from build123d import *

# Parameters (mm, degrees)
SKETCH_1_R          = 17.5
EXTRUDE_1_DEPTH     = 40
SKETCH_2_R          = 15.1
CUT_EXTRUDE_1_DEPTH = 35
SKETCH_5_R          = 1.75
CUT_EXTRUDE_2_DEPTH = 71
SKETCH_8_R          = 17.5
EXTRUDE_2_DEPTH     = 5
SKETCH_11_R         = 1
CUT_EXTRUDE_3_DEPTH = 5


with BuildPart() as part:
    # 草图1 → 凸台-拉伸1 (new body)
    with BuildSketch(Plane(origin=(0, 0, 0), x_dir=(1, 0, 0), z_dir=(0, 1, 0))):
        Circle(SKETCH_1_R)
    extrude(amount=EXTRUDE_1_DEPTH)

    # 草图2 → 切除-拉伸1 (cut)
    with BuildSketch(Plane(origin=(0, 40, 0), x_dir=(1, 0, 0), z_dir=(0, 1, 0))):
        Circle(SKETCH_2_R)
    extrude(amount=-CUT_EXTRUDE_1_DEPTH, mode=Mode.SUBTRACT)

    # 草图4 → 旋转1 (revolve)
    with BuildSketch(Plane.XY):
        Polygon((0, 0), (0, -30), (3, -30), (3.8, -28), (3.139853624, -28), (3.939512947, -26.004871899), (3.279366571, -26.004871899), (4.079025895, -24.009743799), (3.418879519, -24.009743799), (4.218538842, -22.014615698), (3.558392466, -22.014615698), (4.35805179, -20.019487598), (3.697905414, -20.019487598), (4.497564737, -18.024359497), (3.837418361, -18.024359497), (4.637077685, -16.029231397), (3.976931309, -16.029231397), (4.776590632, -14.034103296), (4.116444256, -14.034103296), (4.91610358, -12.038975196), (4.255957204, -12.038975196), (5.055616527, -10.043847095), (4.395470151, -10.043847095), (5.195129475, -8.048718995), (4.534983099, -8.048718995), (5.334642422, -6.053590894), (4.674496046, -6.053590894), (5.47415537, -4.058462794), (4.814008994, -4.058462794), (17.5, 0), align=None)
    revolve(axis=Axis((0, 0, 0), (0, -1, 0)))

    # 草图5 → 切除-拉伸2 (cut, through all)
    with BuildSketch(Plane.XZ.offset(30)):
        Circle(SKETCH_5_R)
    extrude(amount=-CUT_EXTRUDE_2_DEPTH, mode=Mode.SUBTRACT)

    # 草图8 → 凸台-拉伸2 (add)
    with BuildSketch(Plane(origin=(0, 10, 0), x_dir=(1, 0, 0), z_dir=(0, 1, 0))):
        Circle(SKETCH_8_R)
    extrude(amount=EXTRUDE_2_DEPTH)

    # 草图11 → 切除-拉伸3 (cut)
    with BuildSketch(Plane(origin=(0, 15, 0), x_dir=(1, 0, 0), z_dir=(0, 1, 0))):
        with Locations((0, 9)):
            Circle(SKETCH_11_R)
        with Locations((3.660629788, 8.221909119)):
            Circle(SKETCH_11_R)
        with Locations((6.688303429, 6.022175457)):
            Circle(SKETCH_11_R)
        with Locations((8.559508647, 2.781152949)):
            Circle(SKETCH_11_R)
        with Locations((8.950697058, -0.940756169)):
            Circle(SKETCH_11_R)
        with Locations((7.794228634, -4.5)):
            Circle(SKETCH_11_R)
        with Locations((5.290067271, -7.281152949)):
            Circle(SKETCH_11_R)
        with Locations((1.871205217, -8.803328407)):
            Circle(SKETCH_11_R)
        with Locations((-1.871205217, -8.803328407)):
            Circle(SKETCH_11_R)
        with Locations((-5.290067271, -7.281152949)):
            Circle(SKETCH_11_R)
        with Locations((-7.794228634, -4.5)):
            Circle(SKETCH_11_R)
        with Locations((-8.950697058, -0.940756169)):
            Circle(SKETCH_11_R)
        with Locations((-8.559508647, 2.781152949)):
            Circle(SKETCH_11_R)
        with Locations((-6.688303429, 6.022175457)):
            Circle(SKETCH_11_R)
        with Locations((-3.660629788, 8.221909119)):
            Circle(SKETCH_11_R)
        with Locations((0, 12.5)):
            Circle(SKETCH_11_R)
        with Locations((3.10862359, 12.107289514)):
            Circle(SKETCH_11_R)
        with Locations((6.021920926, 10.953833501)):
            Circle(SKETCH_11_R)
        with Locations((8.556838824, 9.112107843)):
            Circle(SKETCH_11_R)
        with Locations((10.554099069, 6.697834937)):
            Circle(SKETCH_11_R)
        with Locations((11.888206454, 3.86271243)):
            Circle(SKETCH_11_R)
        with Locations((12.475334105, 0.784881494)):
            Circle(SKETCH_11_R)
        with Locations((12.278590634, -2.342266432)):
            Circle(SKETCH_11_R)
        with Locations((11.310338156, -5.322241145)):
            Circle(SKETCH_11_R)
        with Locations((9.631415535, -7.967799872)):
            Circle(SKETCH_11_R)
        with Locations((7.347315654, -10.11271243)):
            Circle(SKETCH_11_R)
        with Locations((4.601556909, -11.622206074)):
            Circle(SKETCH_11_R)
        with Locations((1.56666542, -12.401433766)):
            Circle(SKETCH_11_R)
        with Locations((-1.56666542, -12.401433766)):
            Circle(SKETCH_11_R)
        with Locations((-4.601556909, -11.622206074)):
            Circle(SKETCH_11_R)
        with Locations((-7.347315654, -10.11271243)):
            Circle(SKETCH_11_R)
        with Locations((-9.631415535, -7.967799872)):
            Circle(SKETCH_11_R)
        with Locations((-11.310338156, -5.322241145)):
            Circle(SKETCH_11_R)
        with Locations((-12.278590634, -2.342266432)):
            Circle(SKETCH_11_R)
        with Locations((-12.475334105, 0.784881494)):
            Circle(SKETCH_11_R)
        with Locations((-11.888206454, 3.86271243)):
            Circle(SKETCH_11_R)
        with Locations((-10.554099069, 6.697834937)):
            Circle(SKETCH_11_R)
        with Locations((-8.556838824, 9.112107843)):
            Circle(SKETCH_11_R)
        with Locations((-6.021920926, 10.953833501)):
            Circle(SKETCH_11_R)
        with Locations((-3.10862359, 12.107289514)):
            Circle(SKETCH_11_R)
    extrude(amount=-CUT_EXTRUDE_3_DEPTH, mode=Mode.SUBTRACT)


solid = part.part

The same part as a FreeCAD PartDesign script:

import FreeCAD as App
import Part
import Sketcher

V = App.Vector
Q = App.Units.Quantity


def add_polygon(sketch, points):
    """Adds a closed chain of lines whose ends are joined by coincident constraints."""
    first, n = sketch.GeometryCount, len(points)
    for a, b in zip(points, points[1:] + points[:1]):
        sketch.addGeometry(Part.LineSegment(App.Vector(*a, 0), App.Vector(*b, 0)), False)
    for i in range(n):
        sketch.addConstraint(Sketcher.Constraint("Coincident", first + i, 2, first + (i + 1) % n, 1))

doc = App.newDocument("Part")
body = doc.addObject("PartDesign::Body", "Body")

# Sketch on XZ plane
sketch1 = body.newObject("Sketcher::SketchObject", "Sketch")
sketch1.AttachmentSupport = (doc.getObject("XZ_Plane"), [""])
sketch1.MapMode = "FlatFace"
sketch1.addGeometry(Part.Circle(V(0, 0, 0), V(0, 0, 1), 18), False)
sketch1.addConstraint([
    Sketcher.Constraint("Coincident", 0, 3, -1, 1),
    Sketcher.Constraint("Diameter", 0, Q("35 mm")),
])
pad1 = body.newObject("PartDesign::Pad", "Pad")
pad1.Profile = sketch1
pad1.Length = 40
pad1.Reversed = True

# Sketch on XZ plane
sketch2 = body.newObject("Sketcher::SketchObject", "Sketch001")
sketch2.AttachmentSupport = (doc.getObject("XZ_Plane"), [""])
sketch2.MapMode = "FlatFace"
sketch2.AttachmentOffset = App.Placement(V(0, 0, -40), App.Rotation())
sketch2.addGeometry(Part.Circle(V(0, 0, 0), V(0, 0, 1), 15), False)
sketch2.addConstraint([
    Sketcher.Constraint("Coincident", 0, 3, -1, 1),
    Sketcher.Constraint("Diameter", 0, Q("30.2 mm")),
])
pocket1 = body.newObject("PartDesign::Pocket", "Pocket")
pocket1.Profile = sketch2
pocket1.Length = 35
pocket1.Reversed = True

# Sketch on XY plane
sketch3 = body.newObject("Sketcher::SketchObject", "Sketch002")
sketch3.AttachmentSupport = (doc.getObject("XY_Plane"), [""])
sketch3.MapMode = "FlatFace"
add_polygon(sketch3, [(0, 0), (0, -30), (3, -30), (3.8, -28), (3.1, -28), (3.9, -26), (3.3, -26), (4.1, -24), (3.4, -24), (4.2, -22), (3.6, -22), (4.4, -20), (3.7, -20), (4.5, -18), (3.8, -18), (4.6, -16), (4, -16), (4.8, -14), (4.1, -14), (4.9, -12), (4.3, -12), (5.1, -10), (4.4, -10), (5.2, -8), (4.5, -8), (5.3, -6.1), (4.7, -6.1), (5.5, -4.1), (4.8, -4.1), (17.5, 0)])  # lines 0-29
sketch3.addConstraint([
    Sketcher.Constraint("Vertical", 0),
    Sketcher.Constraint("Horizontal", 1),
    Sketcher.Constraint("Horizontal", 3),
    Sketcher.Constraint("Horizontal", 5),
    Sketcher.Constraint("Horizontal", 7),
    Sketcher.Constraint("Horizontal", 9),
    Sketcher.Constraint("Horizontal", 11),
    Sketcher.Constraint("Horizontal", 13),
    Sketcher.Constraint("Horizontal", 15),
    Sketcher.Constraint("Horizontal", 17),
    Sketcher.Constraint("Horizontal", 19),
    Sketcher.Constraint("Horizontal", 21),
    Sketcher.Constraint("Horizontal", 23),
    Sketcher.Constraint("Horizontal", 25),
    Sketcher.Constraint("Horizontal", 27),
    Sketcher.Constraint("Horizontal", 29),
    Sketcher.Constraint("Coincident", 29, 2, -1, 1),
    Sketcher.Constraint("Parallel", 4, 6),
    Sketcher.Constraint("Parallel", 6, 8),
    Sketcher.Constraint("Parallel", 8, 10),
    Sketcher.Constraint("Parallel", 10, 12),
    Sketcher.Constraint("Parallel", 12, 14),
    Sketcher.Constraint("Parallel", 14, 16),
    Sketcher.Constraint("Parallel", 16, 18),
    Sketcher.Constraint("Parallel", 18, 20),
    Sketcher.Constraint("Parallel", 20, 22),
    Sketcher.Constraint("Parallel", 22, 24),
    Sketcher.Constraint("Parallel", 24, 26),
    Sketcher.Constraint("Equal", 3, 5),
    Sketcher.Constraint("Equal", 5, 7),
    Sketcher.Constraint("Equal", 7, 9),
    Sketcher.Constraint("Equal", 9, 11),
    Sketcher.Constraint("Equal", 11, 13),
    Sketcher.Constraint("Equal", 13, 15),
    Sketcher.Constraint("Equal", 15, 17),
    Sketcher.Constraint("Equal", 17, 19),
    Sketcher.Constraint("Equal", 19, 21),
    Sketcher.Constraint("Equal", 21, 23),
    Sketcher.Constraint("Equal", 23, 25),
    Sketcher.Constraint("Equal", 25, 27),
    Sketcher.Constraint("Equal", 4, 6),
    Sketcher.Constraint("Equal", 6, 8),
    Sketcher.Constraint("Equal", 8, 10),
    Sketcher.Constraint("Equal", 10, 12),
    Sketcher.Constraint("Equal", 12, 14),
    Sketcher.Constraint("Equal", 14, 16),
    Sketcher.Constraint("Equal", 16, 18),
    Sketcher.Constraint("Equal", 18, 20),
    Sketcher.Constraint("Equal", 20, 22),
    Sketcher.Constraint("Equal", 22, 24),
    Sketcher.Constraint("Equal", 24, 26),
    Sketcher.Constraint("DistanceX", 1, 1, 1, 2, Q("3 mm")),
    Sketcher.Constraint("DistanceY", 0, 2, 0, 1, Q("30 mm")),
    Sketcher.Constraint("DistanceX", 29, 2, 29, 1, Q("17.5 mm")),
    Sketcher.Constraint("DistanceY", 2, 2, -1, 1, Q("28 mm")),
    Sketcher.Constraint("DistanceX", -1, 1, 2, 2, Q("3.8 mm")),
    Sketcher.Constraint("DistanceX", 3, 2, 3, 1, Q("0.660146 mm")),
    Sketcher.Constraint("DistanceY", 4, 2, -1, 1, Q("26.004872 mm")),
    Sketcher.Constraint("DistanceX", -1, 1, 7, 2, Q("3.41888 mm")),
])
revolution = body.newObject("PartDesign::Revolution", "Revolution")
revolution.Profile = sketch3
revolution.ReferenceAxis = (sketch3, ["V_Axis"])
revolution.Angle = 360

# Sketch on XZ plane
sketch4 = body.newObject("Sketcher::SketchObject", "Sketch003")
sketch4.AttachmentSupport = (doc.getObject("XZ_Plane"), [""])
sketch4.MapMode = "FlatFace"
sketch4.AttachmentOffset = App.Placement(V(0, 0, 30), App.Rotation())
sketch4.addGeometry(Part.Circle(V(0, 0, 0), V(0, 0, 1), 1.8), False)
sketch4.addConstraint([
    Sketcher.Constraint("Coincident", 0, 3, -1, 1),
    Sketcher.Constraint("Diameter", 0, Q("3.5 mm")),
])
pocket2 = body.newObject("PartDesign::Pocket", "Pocket001")
pocket2.Profile = sketch4
pocket2.Type = "ThroughAll"

# Sketch on XZ plane
sketch5 = body.newObject("Sketcher::SketchObject", "Sketch004")
sketch5.AttachmentSupport = (doc.getObject("XZ_Plane"), [""])
sketch5.MapMode = "FlatFace"
sketch5.AttachmentOffset = App.Placement(V(0, 0, -10), App.Rotation())
sketch5.addGeometry(Part.Circle(V(0, 0, 0), V(0, 0, 1), 18), False)
sketch5.addConstraint([
    Sketcher.Constraint("Coincident", 0, 3, -1, 1),
    Sketcher.Constraint("Diameter", 0, Q("35 mm")),
])
pad2 = body.newObject("PartDesign::Pad", "Pad001")
pad2.Profile = sketch5
pad2.Length = 5
pad2.Reversed = True

# Sketch on XZ plane
sketch6 = body.newObject("Sketcher::SketchObject", "Sketch005")
sketch6.AttachmentSupport = (doc.getObject("XZ_Plane"), [""])
sketch6.MapMode = "FlatFace"
sketch6.AttachmentOffset = App.Placement(V(0, 0, -15), App.Rotation())
sketch6.addGeometry([
    Part.Circle(V(0, -9, 0), V(0, 0, 1), 1),  # 0
    Part.Circle(V(3.7, -8.2, 0), V(0, 0, 1), 1),  # 1
    Part.Circle(V(6.7, -6, 0), V(0, 0, 1), 1),  # 2
    Part.Circle(V(8.6, -2.8, 0), V(0, 0, 1), 1),  # 3
    Part.Circle(V(9, 0.9, 0), V(0, 0, 1), 1),  # 4
    Part.Circle(V(7.8, 4.5, 0), V(0, 0, 1), 1),  # 5
    Part.Circle(V(5.3, 7.3, 0), V(0, 0, 1), 1),  # 6
    Part.Circle(V(1.9, 8.8, 0), V(0, 0, 1), 1),  # 7
    Part.Circle(V(-1.9, 8.8, 0), V(0, 0, 1), 1),  # 8
    Part.Circle(V(-5.3, 7.3, 0), V(0, 0, 1), 1),  # 9
    Part.Circle(V(-7.8, 4.5, 0), V(0, 0, 1), 1),  # 10
    Part.Circle(V(-9, 0.9, 0), V(0, 0, 1), 1),  # 11
    Part.Circle(V(-8.6, -2.8, 0), V(0, 0, 1), 1),  # 12
    Part.Circle(V(-6.7, -6, 0), V(0, 0, 1), 1),  # 13
    Part.Circle(V(-3.7, -8.2, 0), V(0, 0, 1), 1),  # 14
    Part.Circle(V(0, -12.5, 0), V(0, 0, 1), 1),  # 15
    Part.Circle(V(3.1, -12.1, 0), V(0, 0, 1), 1),  # 16
    Part.Circle(V(6, -11, 0), V(0, 0, 1), 1),  # 17
    Part.Circle(V(8.6, -9.1, 0), V(0, 0, 1), 1),  # 18
    Part.Circle(V(10.6, -6.7, 0), V(0, 0, 1), 1),  # 19
    Part.Circle(V(11.9, -3.9, 0), V(0, 0, 1), 1),  # 20
    Part.Circle(V(12.5, -0.8, 0), V(0, 0, 1), 1),  # 21
    Part.Circle(V(12.3, 2.3, 0), V(0, 0, 1), 1),  # 22
    Part.Circle(V(11.3, 5.3, 0), V(0, 0, 1), 1),  # 23
    Part.Circle(V(9.6, 8, 0), V(0, 0, 1), 1),  # 24
    Part.Circle(V(7.3, 10.1, 0), V(0, 0, 1), 1),  # 25
    Part.Circle(V(4.6, 11.6, 0), V(0, 0, 1), 1),  # 26
    Part.Circle(V(1.6, 12.4, 0), V(0, 0, 1), 1),  # 27
    Part.Circle(V(-1.6, 12.4, 0), V(0, 0, 1), 1),  # 28
    Part.Circle(V(-4.6, 11.6, 0), V(0, 0, 1), 1),  # 29
    Part.Circle(V(-7.3, 10.1, 0), V(0, 0, 1), 1),  # 30
    Part.Circle(V(-9.6, 8, 0), V(0, 0, 1), 1),  # 31
    Part.Circle(V(-11.3, 5.3, 0), V(0, 0, 1), 1),  # 32
    Part.Circle(V(-12.3, 2.3, 0), V(0, 0, 1), 1),  # 33
    Part.Circle(V(-12.5, -0.8, 0), V(0, 0, 1), 1),  # 34
    Part.Circle(V(-11.9, -3.9, 0), V(0, 0, 1), 1),  # 35
    Part.Circle(V(-10.6, -6.7, 0), V(0, 0, 1), 1),  # 36
    Part.Circle(V(-8.6, -9.1, 0), V(0, 0, 1), 1),  # 37
    Part.Circle(V(-6, -11, 0), V(0, 0, 1), 1),  # 38
    Part.Circle(V(-3.1, -12.1, 0), V(0, 0, 1), 1),  # 39
], False)
sketch6.addConstraint([
    Sketcher.Constraint("Equal", 0, 1),
    Sketcher.Constraint("Equal", 1, 2),
    Sketcher.Constraint("Equal", 2, 3),
    Sketcher.Constraint("Equal", 3, 4),
    Sketcher.Constraint("Equal", 4, 5),
    Sketcher.Constraint("Equal", 5, 6),
    Sketcher.Constraint("Equal", 6, 7),
    Sketcher.Constraint("Equal", 7, 8),
    Sketcher.Constraint("Equal", 8, 9),
    Sketcher.Constraint("Equal", 9, 10),
    Sketcher.Constraint("Equal", 10, 11),
    Sketcher.Constraint("Equal", 11, 12),
    Sketcher.Constraint("Equal", 12, 13),
    Sketcher.Constraint("Equal", 13, 14),
    Sketcher.Constraint("Equal", 14, 15),
    Sketcher.Constraint("Equal", 15, 16),
    Sketcher.Constraint("Equal", 16, 17),
    Sketcher.Constraint("Equal", 17, 18),
    Sketcher.Constraint("Equal", 18, 19),
    Sketcher.Constraint("Equal", 19, 20),
    Sketcher.Constraint("Equal", 20, 21),
    Sketcher.Constraint("Equal", 21, 22),
    Sketcher.Constraint("Equal", 22, 23),
    Sketcher.Constraint("Equal", 23, 24),
    Sketcher.Constraint("Equal", 24, 25),
    Sketcher.Constraint("Equal", 25, 26),
    Sketcher.Constraint("Equal", 26, 27),
    Sketcher.Constraint("Equal", 27, 28),
    Sketcher.Constraint("Equal", 28, 29),
    Sketcher.Constraint("Equal", 29, 30),
    Sketcher.Constraint("Equal", 30, 31),
    Sketcher.Constraint("Equal", 31, 32),
    Sketcher.Constraint("Equal", 32, 33),
    Sketcher.Constraint("Equal", 33, 34),
    Sketcher.Constraint("Equal", 34, 35),
    Sketcher.Constraint("Equal", 35, 36),
    Sketcher.Constraint("Equal", 36, 37),
    Sketcher.Constraint("Equal", 37, 38),
    Sketcher.Constraint("Equal", 38, 39),
    Sketcher.Constraint("Symmetric", 7, 3, 8, 3, -2),
    Sketcher.Constraint("Symmetric", 6, 3, 9, 3, -2),
    Sketcher.Constraint("Symmetric", 5, 3, 10, 3, -2),
    Sketcher.Constraint("Symmetric", 4, 3, 11, 3, -2),
    Sketcher.Constraint("Symmetric", 3, 3, 12, 3, -2),
    Sketcher.Constraint("Symmetric", 2, 3, 13, 3, -2),
    Sketcher.Constraint("Symmetric", 1, 3, 14, 3, -2),
    Sketcher.Constraint("Symmetric", 27, 3, 28, 3, -2),
    Sketcher.Constraint("Symmetric", 26, 3, 29, 3, -2),
    Sketcher.Constraint("Symmetric", 25, 3, 30, 3, -2),
    Sketcher.Constraint("Symmetric", 24, 3, 31, 3, -2),
    Sketcher.Constraint("Symmetric", 23, 3, 32, 3, -2),
    Sketcher.Constraint("Symmetric", 22, 3, 33, 3, -2),
    Sketcher.Constraint("Symmetric", 21, 3, 34, 3, -2),
    Sketcher.Constraint("Symmetric", 20, 3, 35, 3, -2),
    Sketcher.Constraint("Symmetric", 19, 3, 36, 3, -2),
    Sketcher.Constraint("Symmetric", 18, 3, 37, 3, -2),
    Sketcher.Constraint("Symmetric", 17, 3, 38, 3, -2),
    Sketcher.Constraint("Symmetric", 16, 3, 39, 3, -2),
    Sketcher.Constraint("PointOnObject", 0, 3, -2),
    Sketcher.Constraint("PointOnObject", 15, 3, -2),
    Sketcher.Constraint("Diameter", 0, Q("2 mm")),
    Sketcher.Constraint("DistanceY", 0, 3, -1, 1, Q("9 mm")),
    Sketcher.Constraint("DistanceY", -1, 1, 5, 3, Q("4.5 mm")),
    Sketcher.Constraint("DistanceY", 15, 3, -1, 1, Q("12.5 mm")),
    Sketcher.Constraint("DistanceY", 17, 3, 19, 3, Q("4.255999 mm")),
    Sketcher.Constraint("DistanceX", -1, 1, 19, 3, Q("10.554099 mm")),
    Sketcher.Constraint("DistanceY", -1, 1, 24, 3, Q("7.9678 mm")),
    Sketcher.Constraint("DistanceX", 1, 3, 5, 3, Q("4.133599 mm")),
    Sketcher.Constraint("DistanceX", 7, 3, 2, 3, Q("4.817098 mm")),
    Sketcher.Constraint("DistanceY", 18, 3, 1, 3, Q("0.890199 mm")),
    Sketcher.Constraint("DistanceX", 25, 3, 24, 3, Q("2.2841 mm")),
    Sketcher.Constraint("DistanceX", 27, 3, 6, 3, Q("3.723402 mm")),
    Sketcher.Constraint("DistanceX", -1, 1, 1, 3, Q("3.66063 mm")),
    Sketcher.Constraint("DistanceY", 1, 3, -1, 1, Q("8.221909 mm")),
    Sketcher.Constraint("DistanceX", -1, 1, 3, 3, Q("8.559509 mm")),
    Sketcher.Constraint("DistanceY", -1, 1, 7, 3, Q("8.803328 mm")),
    Sketcher.Constraint("DistanceY", 16, 3, -1, 1, Q("12.10729 mm")),
    Sketcher.Constraint("DistanceX", -1, 1, 17, 3, Q("6.021921 mm")),
    Sketcher.Constraint("DistanceX", -1, 1, 18, 3, Q("8.556839 mm")),
    Sketcher.Constraint("DistanceY", 21, 3, -1, 1, Q("0.784881 mm")),
    Sketcher.Constraint("DistanceX", -1, 1, 22, 3, Q("12.278591 mm")),
    Sketcher.Constraint("DistanceX", -1, 1, 23, 3, Q("11.310338 mm")),
    Sketcher.Constraint("DistanceY", -1, 1, 23, 3, Q("5.322241 mm")),
    Sketcher.Constraint("DistanceX", 3, 3, 4, 3, Q("0.391188 mm")),
    Sketcher.Constraint("DistanceY", 3, 3, 4, 3, Q("3.721909 mm")),
    Sketcher.Constraint("DistanceY", 2, 3, 4, 3, Q("6.962932 mm")),
    Sketcher.Constraint("DistanceX", 6, 3, 5, 3, Q("2.504161 mm")),
    Sketcher.Constraint("DistanceY", 2, 3, 6, 3, Q("13.303328 mm")),
    Sketcher.Constraint("DistanceX", 7, 3, 4, 3, Q("7.079492 mm")),
    Sketcher.Constraint("DistanceY", 3, 3, 7, 3, Q("11.584481 mm")),
    Sketcher.Constraint("DistanceX", 16, 3, 2, 3, Q("3.57968 mm")),
    Sketcher.Constraint("DistanceY", 17, 3, 2, 3, Q("4.931658 mm")),
    Sketcher.Constraint("DistanceY", 20, 3, 3, 3, Q("1.081559 mm")),
    Sketcher.Constraint("DistanceX", 4, 3, 20, 3, Q("2.937509 mm")),
    Sketcher.Constraint("DistanceY", 4, 3, 22, 3, Q("1.40151 mm")),
    Sketcher.Constraint("DistanceX", 6, 3, 24, 3, Q("4.341348 mm")),
    Sketcher.Constraint("DistanceY", 6, 3, 25, 3, Q("2.831559 mm")),
    Sketcher.Constraint("DistanceX", 26, 3, 25, 3, Q("2.745759 mm")),
    Sketcher.Constraint("DistanceY", 25, 3, 27, 3, Q("2.288721 mm")),
    Sketcher.Constraint("DistanceX", -1, 1, 21, 3, Q("12.475334 mm")),
    Sketcher.Constraint("DistanceY", -1, 1, 26, 3, Q("11.622206 mm")),
])
pocket3 = body.newObject("PartDesign::Pocket", "Pocket002")
pocket3.Profile = sketch6
pocket3.Length = 5
pocket3.Reversed = True

doc.recompute()
